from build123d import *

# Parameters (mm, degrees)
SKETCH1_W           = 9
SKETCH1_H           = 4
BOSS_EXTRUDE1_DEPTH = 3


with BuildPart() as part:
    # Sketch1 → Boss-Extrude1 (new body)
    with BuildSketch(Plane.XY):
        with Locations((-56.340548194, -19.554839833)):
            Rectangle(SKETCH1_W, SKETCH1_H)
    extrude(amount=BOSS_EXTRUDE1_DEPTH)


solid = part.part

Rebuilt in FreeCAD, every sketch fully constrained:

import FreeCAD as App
import Part
import Sketcher

V = App.Vector

doc = App.newDocument("Part")
body = doc.addObject("PartDesign::Body", "Body")

# Sketch on XY plane
sketch1 = body.newObject("Sketcher::SketchObject", "Sketch")
sketch1.AttachmentSupport = (doc.getObject("XY_Plane"), [""])
sketch1.MapMode = "FlatFace"
sketch1.addGeometry(Part.LineSegment(V(-60.8, -17.6, 0), V(-60.8, -21.6, 0)), False)
sketch1.addGeometry(Part.LineSegment(V(-60.8, -21.6, 0), V(-51.8, -21.6, 0)), False)
sketch1.addGeometry(Part.LineSegment(V(-51.8, -21.6, 0), V(-51.8, -17.6, 0)), False)
sketch1.addGeometry(Part.LineSegment(V(-51.8, -17.6, 0), V(-60.8, -17.6, 0)), False)
sketch1.addConstraint(Sketcher.Constraint("Coincident", 0, 2, 1, 1))
sketch1.addConstraint(Sketcher.Constraint("Coincident", 1, 2, 2, 1))
sketch1.addConstraint(Sketcher.Constraint("Coincident", 2, 2, 3, 1))
sketch1.addConstraint(Sketcher.Constraint("Coincident", 3, 2, 0, 1))
sketch1.addConstraint(Sketcher.Constraint("Vertical", 0))
sketch1.addConstraint(Sketcher.Constraint("Horizontal", 1))
sketch1.addConstraint(Sketcher.Constraint("Vertical", 2))
sketch1.addConstraint(Sketcher.Constraint("Horizontal", 3))
sketch1.addConstraint(Sketcher.Constraint("DistanceX", 1, 1, 1, 2, 9.0))
sketch1.addConstraint(Sketcher.Constraint("DistanceY", 0, 2, 0, 1, 4.0))
sketch1.addConstraint(Sketcher.Constraint("DistanceX", 0, 2, -1, 1, 60.840548))
sketch1.addConstraint(Sketcher.Constraint("DistanceY", 0, 2, -1, 1, 21.55484))
pad1 = body.newObject("PartDesign::Pad", "Pad")
pad1.Profile = sketch1
pad1.Length = 3

doc.recompute()
